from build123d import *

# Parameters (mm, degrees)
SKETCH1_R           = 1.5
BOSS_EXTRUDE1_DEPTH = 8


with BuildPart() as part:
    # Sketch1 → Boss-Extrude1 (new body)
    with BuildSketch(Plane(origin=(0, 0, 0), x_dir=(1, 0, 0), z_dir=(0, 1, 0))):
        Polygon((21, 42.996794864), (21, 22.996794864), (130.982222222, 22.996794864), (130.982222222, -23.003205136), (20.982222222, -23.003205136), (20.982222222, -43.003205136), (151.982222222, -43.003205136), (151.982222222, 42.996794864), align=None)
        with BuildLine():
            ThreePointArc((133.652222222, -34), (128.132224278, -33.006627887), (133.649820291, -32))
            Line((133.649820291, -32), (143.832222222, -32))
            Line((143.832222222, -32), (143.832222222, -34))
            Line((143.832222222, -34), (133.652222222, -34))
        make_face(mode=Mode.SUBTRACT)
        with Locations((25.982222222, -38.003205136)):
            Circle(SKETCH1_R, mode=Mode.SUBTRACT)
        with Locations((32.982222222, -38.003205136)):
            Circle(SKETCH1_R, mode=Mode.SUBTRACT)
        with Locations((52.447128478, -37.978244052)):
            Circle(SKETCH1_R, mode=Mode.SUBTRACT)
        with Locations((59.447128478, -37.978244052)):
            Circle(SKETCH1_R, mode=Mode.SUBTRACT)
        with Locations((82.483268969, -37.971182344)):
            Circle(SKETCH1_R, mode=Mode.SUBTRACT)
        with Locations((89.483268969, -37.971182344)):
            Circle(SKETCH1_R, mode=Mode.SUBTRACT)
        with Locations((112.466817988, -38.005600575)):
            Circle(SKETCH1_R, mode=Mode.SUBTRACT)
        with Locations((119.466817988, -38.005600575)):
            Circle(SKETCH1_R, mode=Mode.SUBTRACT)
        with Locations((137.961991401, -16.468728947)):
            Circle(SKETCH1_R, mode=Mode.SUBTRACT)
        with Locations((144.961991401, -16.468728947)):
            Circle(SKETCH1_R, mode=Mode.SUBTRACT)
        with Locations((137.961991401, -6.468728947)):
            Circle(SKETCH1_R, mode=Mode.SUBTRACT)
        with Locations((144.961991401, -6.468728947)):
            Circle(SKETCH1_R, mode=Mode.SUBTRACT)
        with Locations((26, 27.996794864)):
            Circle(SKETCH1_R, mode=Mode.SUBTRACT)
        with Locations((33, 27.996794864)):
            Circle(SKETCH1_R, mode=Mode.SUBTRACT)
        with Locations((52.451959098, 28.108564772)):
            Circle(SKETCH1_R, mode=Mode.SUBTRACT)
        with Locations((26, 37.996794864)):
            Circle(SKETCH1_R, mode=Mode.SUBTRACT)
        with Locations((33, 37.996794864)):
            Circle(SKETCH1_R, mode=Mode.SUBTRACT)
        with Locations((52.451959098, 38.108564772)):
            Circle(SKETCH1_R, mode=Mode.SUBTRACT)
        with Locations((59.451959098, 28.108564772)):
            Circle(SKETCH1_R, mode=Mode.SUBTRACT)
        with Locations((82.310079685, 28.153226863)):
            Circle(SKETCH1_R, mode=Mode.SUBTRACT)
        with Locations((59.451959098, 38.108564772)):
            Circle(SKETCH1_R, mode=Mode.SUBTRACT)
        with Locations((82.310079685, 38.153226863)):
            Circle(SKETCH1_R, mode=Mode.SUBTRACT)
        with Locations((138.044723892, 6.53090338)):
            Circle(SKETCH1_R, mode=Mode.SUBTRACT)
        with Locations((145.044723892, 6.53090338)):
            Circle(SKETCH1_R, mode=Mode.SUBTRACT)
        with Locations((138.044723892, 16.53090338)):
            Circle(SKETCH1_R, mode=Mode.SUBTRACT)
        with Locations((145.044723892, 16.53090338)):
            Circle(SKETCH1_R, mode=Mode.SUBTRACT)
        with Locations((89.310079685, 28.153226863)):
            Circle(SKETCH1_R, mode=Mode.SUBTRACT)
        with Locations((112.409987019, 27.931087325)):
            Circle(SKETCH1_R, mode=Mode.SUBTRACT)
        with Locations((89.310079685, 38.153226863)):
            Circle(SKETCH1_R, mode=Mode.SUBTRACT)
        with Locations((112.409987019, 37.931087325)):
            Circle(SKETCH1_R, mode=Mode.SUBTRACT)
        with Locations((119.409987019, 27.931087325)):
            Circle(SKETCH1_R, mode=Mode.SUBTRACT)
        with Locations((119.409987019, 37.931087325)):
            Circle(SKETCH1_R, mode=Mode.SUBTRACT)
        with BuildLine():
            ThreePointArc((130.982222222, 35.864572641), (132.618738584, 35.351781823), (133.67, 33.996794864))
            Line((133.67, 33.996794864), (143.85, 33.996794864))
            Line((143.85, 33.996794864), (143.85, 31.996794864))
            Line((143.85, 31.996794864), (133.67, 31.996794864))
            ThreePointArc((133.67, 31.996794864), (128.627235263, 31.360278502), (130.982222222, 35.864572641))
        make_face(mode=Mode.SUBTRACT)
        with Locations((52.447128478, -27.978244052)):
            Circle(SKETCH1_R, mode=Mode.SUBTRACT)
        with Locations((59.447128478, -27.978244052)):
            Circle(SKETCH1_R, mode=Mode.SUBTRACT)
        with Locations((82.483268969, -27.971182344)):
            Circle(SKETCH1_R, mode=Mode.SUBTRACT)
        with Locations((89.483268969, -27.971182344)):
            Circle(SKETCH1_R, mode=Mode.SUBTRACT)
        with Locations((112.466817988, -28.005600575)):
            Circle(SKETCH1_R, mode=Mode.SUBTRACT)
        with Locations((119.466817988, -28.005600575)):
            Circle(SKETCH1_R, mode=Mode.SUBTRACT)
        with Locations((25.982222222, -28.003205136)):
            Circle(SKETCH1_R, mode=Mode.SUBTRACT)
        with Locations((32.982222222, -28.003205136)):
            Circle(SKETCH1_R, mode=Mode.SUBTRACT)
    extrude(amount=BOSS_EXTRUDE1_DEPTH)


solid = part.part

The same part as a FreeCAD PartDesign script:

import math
import FreeCAD as App
import Part
import Sketcher

doc = App.newDocument("Part")
body = doc.addObject("PartDesign::Body", "Body")

sketch1 = doc.addObject("Sketcher::SketchObject", "Sketch")
body.addObject(sketch1)
sketch1.AttachmentSupport = (doc.XZ_Plane, [""])
sketch1.MapMode = "FlatFace"
sketch1.addGeometry(Part.LineSegment(App.Vector(21, -43, 0), App.Vector(21, -23, 0)), False)
sketch1.addGeometry(Part.LineSegment(App.Vector(21, -23, 0), App.Vector(131, -23, 0)), False)
sketch1.addGeometry(Part.LineSegment(App.Vector(131, -23, 0), App.Vector(131, 23, 0)), False)
sketch1.addGeometry(Part.LineSegment(App.Vector(131, 23, 0), App.Vector(21, 23, 0)), False)
sketch1.addGeometry(Part.LineSegment(App.Vector(21, 23, 0), App.Vector(21, 43, 0)), False)
sketch1.addGeometry(Part.LineSegment(App.Vector(21, 43, 0), App.Vector(152, 43, 0)), False)
sketch1.addGeometry(Part.LineSegment(App.Vector(152, 43, 0), App.Vector(152, -43, 0)), False)
sketch1.addGeometry(Part.LineSegment(App.Vector(152, -43, 0), App.Vector(21, -43, 0)), False)
sketch1.addGeometry(Part.Circle(App.Vector(26, 38, 0), App.Vector(0, 0, 1), 1.5), False)
sketch1.addGeometry(Part.Circle(App.Vector(33, 38, 0), App.Vector(0, 0, 1), 1.5), False)
sketch1.addGeometry(Part.Circle(App.Vector(52.4, 38, 0), App.Vector(0, 0, 1), 1.5), False)
sketch1.addGeometry(Part.Circle(App.Vector(26, 28, 0), App.Vector(0, 0, 1), 1.5), False)
sketch1.addGeometry(Part.Circle(App.Vector(33, 28, 0), App.Vector(0, 0, 1), 1.5), False)
sketch1.addGeometry(Part.Circle(App.Vector(52.4, 28, 0), App.Vector(0, 0, 1), 1.5), False)
sketch1.addGeometry(Part.Circle(App.Vector(59.4, 38, 0), App.Vector(0, 0, 1), 1.5), False)
sketch1.addGeometry(Part.Circle(App.Vector(82.5, 38, 0), App.Vector(0, 0, 1), 1.5), False)
sketch1.addGeometry(Part.Circle(App.Vector(59.4, 28, 0), App.Vector(0, 0, 1), 1.5), False)
sketch1.addGeometry(Part.Circle(App.Vector(82.5, 28, 0), App.Vector(0, 0, 1), 1.5), False)
sketch1.addGeometry(Part.Circle(App.Vector(89.5, 38, 0), App.Vector(0, 0, 1), 1.5), False)
sketch1.addGeometry(Part.Circle(App.Vector(112.5, 38, 0), App.Vector(0, 0, 1), 1.5), False)
sketch1.addGeometry(Part.Circle(App.Vector(89.5, 28, 0), App.Vector(0, 0, 1), 1.5), False)
sketch1.addGeometry(Part.Circle(App.Vector(112.5, 28, 0), App.Vector(0, 0, 1), 1.5), False)
sketch1.addGeometry(Part.Circle(App.Vector(119.5, 38, 0), App.Vector(0, 0, 1), 1.5), False)
sketch1.addGeometry(Part.LineSegment(App.Vector(143.8, 34, 0), App.Vector(133.7, 34, 0)), False)
sketch1.addGeometry(Part.ArcOfCircle(Part.Circle(App.Vector(131, 33, 0), App.Vector(0, 0, 1), 2.9), math.radians(20), math.radians(339)), False)
sketch1.addGeometry(Part.LineSegment(App.Vector(133.6, 32, 0), App.Vector(143.8, 32, 0)), False)
sketch1.addGeometry(Part.LineSegment(App.Vector(143.8, 32, 0), App.Vector(143.8, 34, 0)), False)
sketch1.addGeometry(Part.Circle(App.Vector(119.5, 28, 0), App.Vector(0, 0, 1), 1.5), False)
sketch1.addGeometry(Part.Circle(App.Vector(138, 16.5, 0), App.Vector(0, 0, 1), 1.5), False)
sketch1.addGeometry(Part.Circle(App.Vector(145, 16.5, 0), App.Vector(0, 0, 1), 1.5), False)
sketch1.addGeometry(Part.Circle(App.Vector(138, 6.5, 0), App.Vector(0, 0, 1), 1.5), False)
sketch1.addGeometry(Part.Circle(App.Vector(145, 6.5, 0), App.Vector(0, 0, 1), 1.5), False)
sketch1.addGeometry(Part.Circle(App.Vector(26, -28, 0), App.Vector(0, 0, 1), 1.5), False)
sketch1.addGeometry(Part.Circle(App.Vector(33, -28, 0), App.Vector(0, 0, 1), 1.5), False)
sketch1.addGeometry(Part.Circle(App.Vector(52.5, -28.1, 0), App.Vector(0, 0, 1), 1.5), False)
sketch1.addGeometry(Part.Circle(App.Vector(26, -38, 0), App.Vector(0, 0, 1), 1.5), False)
sketch1.addGeometry(Part.Circle(App.Vector(33, -38, 0), App.Vector(0, 0, 1), 1.5), False)
sketch1.addGeometry(Part.Circle(App.Vector(52.5, -38.1, 0), App.Vector(0, 0, 1), 1.5), False)
sketch1.addGeometry(Part.Circle(App.Vector(59.5, -28.1, 0), App.Vector(0, 0, 1), 1.5), False)
sketch1.addGeometry(Part.Circle(App.Vector(82.3, -28.2, 0), App.Vector(0, 0, 1), 1.5), False)
sketch1.addGeometry(Part.Circle(App.Vector(59.5, -38.1, 0), App.Vector(0, 0, 1), 1.5), False)
sketch1.addGeometry(Part.Circle(App.Vector(82.3, -38.2, 0), App.Vector(0, 0, 1), 1.5), False)
sketch1.addGeometry(Part.Circle(App.Vector(138, -6.5, 0), App.Vector(0, 0, 1), 1.5), False)
sketch1.addGeometry(Part.Circle(App.Vector(145, -6.5, 0), App.Vector(0, 0, 1), 1.5), False)
sketch1.addGeometry(Part.Circle(App.Vector(138, -16.5, 0), App.Vector(0, 0, 1), 1.5), False)
sketch1.addGeometry(Part.Circle(App.Vector(145, -16.5, 0), App.Vector(0, 0, 1), 1.5), False)
sketch1.addGeometry(Part.Circle(App.Vector(89.3, -28.2, 0), App.Vector(0, 0, 1), 1.5), False)
sketch1.addGeometry(Part.Circle(App.Vector(112.4, -27.9, 0), App.Vector(0, 0, 1), 1.5), False)
sketch1.addGeometry(Part.Circle(App.Vector(89.3, -38.2, 0), App.Vector(0, 0, 1), 1.5), False)
sketch1.addGeometry(Part.Circle(App.Vector(112.4, -37.9, 0), App.Vector(0, 0, 1), 1.5), False)
sketch1.addGeometry(Part.Circle(App.Vector(119.4, -27.9, 0), App.Vector(0, 0, 1), 1.5), False)
sketch1.addGeometry(Part.Circle(App.Vector(119.4, -37.9, 0), App.Vector(0, 0, 1), 1.5), False)
sketch1.addGeometry(Part.ArcOfCircle(Part.Circle(App.Vector(131, -33, 0), App.Vector(0, 0, 1), 2.9), math.radians(20), math.radians(270)), False)
sketch1.addGeometry(Part.ArcOfCircle(Part.Circle(App.Vector(131, -33, 0), App.Vector(0, 0, 1), 2.9), math.radians(-90), math.radians(-20)), False)
sketch1.addGeometry(Part.LineSegment(App.Vector(133.7, -34, 0), App.Vector(143.8, -34, 0)), False)
sketch1.addGeometry(Part.LineSegment(App.Vector(143.8, -34, 0), App.Vector(143.8, -32, 0)), False)
sketch1.addGeometry(Part.LineSegment(App.Vector(143.8, -32, 0), App.Vector(133.7, -32, 0)), False)
sketch1.addConstraint(Sketcher.Constraint("Coincident", 0, 2, 1, 1))
sketch1.addConstraint(Sketcher.Constraint("Coincident", 1, 2, 2, 1))
sketch1.addConstraint(Sketcher.Constraint("Coincident", 2, 2, 3, 1))
sketch1.addConstraint(Sketcher.Constraint("Coincident", 3, 2, 4, 1))
sketch1.addConstraint(Sketcher.Constraint("Coincident", 4, 2, 5, 1))
sketch1.addConstraint(Sketcher.Constraint("Coincident", 5, 2, 6, 1))
sketch1.addConstraint(Sketcher.Constraint("Coincident", 6, 2, 7, 1))
sketch1.addConstraint(Sketcher.Constraint("Coincident", 7, 2, 0, 1))
sketch1.addConstraint(Sketcher.Constraint("Coincident", 23, 2, 24, 1))
sketch1.addConstraint(Sketcher.Constraint("Coincident", 24, 2, 25, 1))
sketch1.addConstraint(Sketcher.Constraint("Coincident", 25, 2, 26, 1))
sketch1.addConstraint(Sketcher.Constraint("Coincident", 26, 2, 23, 1))
sketch1.addConstraint(Sketcher.Constraint("Tangent", 52, 2, 53, 1))
sketch1.addConstraint(Sketcher.Constraint("Coincident", 53, 2, 54, 1))
sketch1.addConstraint(Sketcher.Constraint("Coincident", 54, 2, 55, 1))
sketch1.addConstraint(Sketcher.Constraint("Coincident", 55, 2, 56, 1))
sketch1.addConstraint(Sketcher.Constraint("Coincident", 56, 2, 52, 1))
sketch1.addConstraint(Sketcher.Constraint("Vertical", 0))
sketch1.addConstraint(Sketcher.Constraint("Horizontal", 1))
sketch1.addConstraint(Sketcher.Constraint("Vertical", 2))
sketch1.addConstraint(Sketcher.Constraint("Horizontal", 3))
sketch1.addConstraint(Sketcher.Constraint("Vertical", 4))
sketch1.addConstraint(Sketcher.Constraint("Horizontal", 5))
sketch1.addConstraint(Sketcher.Constraint("Vertical", 6))
sketch1.addConstraint(Sketcher.Constraint("Horizontal", 7))
sketch1.addConstraint(Sketcher.Constraint("Horizontal", 23))
sketch1.addConstraint(Sketcher.Constraint("Horizontal", 25))
sketch1.addConstraint(Sketcher.Constraint("Vertical", 26))
sketch1.addConstraint(Sketcher.Constraint("Horizontal", 54))
sketch1.addConstraint(Sketcher.Constraint("Vertical", 55))
sketch1.addConstraint(Sketcher.Constraint("Horizontal", 56))
sketch1.addConstraint(Sketcher.Constraint("Equal", 8, 9))
sketch1.addConstraint(Sketcher.Constraint("Equal", 9, 10))
sketch1.addConstraint(Sketcher.Constraint("Equal", 10, 11))
sketch1.addConstraint(Sketcher.Constraint("Equal", 11, 12))
sketch1.addConstraint(Sketcher.Constraint("Equal", 12, 13))
sketch1.addConstraint(Sketcher.Constraint("Equal", 13, 14))
sketch1.addConstraint(Sketcher.Constraint("Equal", 14, 15))
sketch1.addConstraint(Sketcher.Constraint("Equal", 15, 16))
sketch1.addConstraint(Sketcher.Constraint("Equal", 16, 17))
sketch1.addConstraint(Sketcher.Constraint("Equal", 17, 18))
sketch1.addConstraint(Sketcher.Constraint("Equal", 18, 19))
sketch1.addConstraint(Sketcher.Constraint("Equal", 19, 20))
sketch1.addConstraint(Sketcher.Constraint("Equal", 20, 21))
sketch1.addConstraint(Sketcher.Constraint("Equal", 21, 22))
sketch1.addConstraint(Sketcher.Constraint("Equal", 22, 27))
sketch1.addConstraint(Sketcher.Constraint("Equal", 27, 28))
sketch1.addConstraint(Sketcher.Constraint("Equal", 28, 29))
sketch1.addConstraint(Sketcher.Constraint("Equal", 29, 30))
sketch1.addConstraint(Sketcher.Constraint("Equal", 30, 31))
sketch1.addConstraint(Sketcher.Constraint("Equal", 31, 32))
sketch1.addConstraint(Sketcher.Constraint("Equal", 32, 33))
sketch1.addConstraint(Sketcher.Constraint("Equal", 33, 34))
sketch1.addConstraint(Sketcher.Constraint("Equal", 34, 35))
sketch1.addConstraint(Sketcher.Constraint("Equal", 35, 36))
sketch1.addConstraint(Sketcher.Constraint("Equal", 36, 37))
sketch1.addConstraint(Sketcher.Constraint("Equal", 37, 38))
sketch1.addConstraint(Sketcher.Constraint("Equal", 38, 39))
sketch1.addConstraint(Sketcher.Constraint("Equal", 39, 40))
sketch1.addConstraint(Sketcher.Constraint("Equal", 40, 41))
sketch1.addConstraint(Sketcher.Constraint("Equal", 41, 42))
sketch1.addConstraint(Sketcher.Constraint("Equal", 42, 43))
sketch1.addConstraint(Sketcher.Constraint("Equal", 43, 44))
sketch1.addConstraint(Sketcher.Constraint("Equal", 44, 45))
sketch1.addConstraint(Sketcher.Constraint("Equal", 45, 46))
sketch1.addConstraint(Sketcher.Constraint("Equal", 46, 47))
sketch1.addConstraint(Sketcher.Constraint("Equal", 47, 48))
sketch1.addConstraint(Sketcher.Constraint("Equal", 48, 49))
sketch1.addConstraint(Sketcher.Constraint("Equal", 49, 50))
sketch1.addConstraint(Sketcher.Constraint("Equal", 50, 51))
sketch1.addConstraint(Sketcher.Constraint("Equal", 52, 53))
sketch1.addConstraint(Sketcher.Constraint("Horizontal", 8, 3, 9, 3))
sketch1.addConstraint(Sketcher.Constraint("Horizontal", 11, 3, 12, 3))
sketch1.addConstraint(Sketcher.Constraint("Horizontal", 10, 3, 14, 3))
sketch1.addConstraint(Sketcher.Constraint("Horizontal", 13, 3, 16, 3))
sketch1.addConstraint(Sketcher.Constraint("Horizontal", 15, 3, 18, 3))
sketch1.addConstraint(Sketcher.Constraint("Horizontal", 17, 3, 20, 3))
sketch1.addConstraint(Sketcher.Constraint("Horizontal", 19, 3, 22, 3))
sketch1.addConstraint(Sketcher.Constraint("Horizontal", 21, 3, 27, 3))
sketch1.addConstraint(Sketcher.Constraint("Horizontal", 28, 3, 29, 3))
sketch1.addConstraint(Sketcher.Constraint("Horizontal", 30, 3, 31, 3))
sketch1.addConstraint(Sketcher.Constraint("Horizontal", 32, 3, 33, 3))
sketch1.addConstraint(Sketcher.Constraint("Horizontal", 35, 3, 36, 3))
sketch1.addConstraint(Sketcher.Constraint("Horizontal", 34, 3, 38, 3))
sketch1.addConstraint(Sketcher.Constraint("Horizontal", 37, 3, 40, 3))
sketch1.addConstraint(Sketcher.Constraint("Horizontal", 42, 3, 43, 3))
sketch1.addConstraint(Sketcher.Constraint("Horizontal", 44, 3, 45, 3))
sketch1.addConstraint(Sketcher.Constraint("Horizontal", 39, 3, 46, 3))
sketch1.addConstraint(Sketcher.Constraint("Horizontal", 41, 3, 48, 3))
sketch1.addConstraint(Sketcher.Constraint("Horizontal", 47, 3, 50, 3))
sketch1.addConstraint(Sketcher.Constraint("Horizontal", 49, 3, 51, 3))
sketch1.addConstraint(Sketcher.Constraint("Vertical", 8, 3, 11, 3))
sketch1.addConstraint(Sketcher.Constraint("Vertical", 9, 3, 12, 3))
sketch1.addConstraint(Sketcher.Constraint("Vertical", 10, 3, 13, 3))
sketch1.addConstraint(Sketcher.Constraint("Vertical", 14, 3, 16, 3))
sketch1.addConstraint(Sketcher.Constraint("Vertical", 15, 3, 17, 3))
sketch1.addConstraint(Sketcher.Constraint("Vertical", 18, 3, 20, 3))
sketch1.addConstraint(Sketcher.Constraint("Vertical", 19, 3, 21, 3))
sketch1.addConstraint(Sketcher.Constraint("Vertical", 22, 3, 27, 3))
sketch1.addConstraint(Sketcher.Constraint("Vertical", 28, 3, 30, 3))
sketch1.addConstraint(Sketcher.Constraint("Vertical", 29, 3, 31, 3))
sketch1.addConstraint(Sketcher.Constraint("Vertical", 32, 3, 35, 3))
sketch1.addConstraint(Sketcher.Constraint("Vertical", 33, 3, 36, 3))
sketch1.addConstraint(Sketcher.Constraint("Vertical", 34, 3, 37, 3))
sketch1.addConstraint(Sketcher.Constraint("Vertical", 38, 3, 40, 3))
sketch1.addConstraint(Sketcher.Constraint("Vertical", 39, 3, 41, 3))
sketch1.addConstraint(Sketcher.Constraint("Vertical", 42, 3, 44, 3))
sketch1.addConstraint(Sketcher.Constraint("Vertical", 43, 3, 45, 3))
sketch1.addConstraint(Sketcher.Constraint("Vertical", 46, 3, 48, 3))
sketch1.addConstraint(Sketcher.Constraint("Vertical", 47, 3, 49, 3))
sketch1.addConstraint(Sketcher.Constraint("Vertical", 50, 3, 51, 3))
sketch1.addConstraint(Sketcher.Constraint("Vertical", 24, 3, 52, 3))
sketch1.addConstraint(Sketcher.Constraint("Vertical", 53, 3, 1, 2))
sketch1.addConstraint(Sketcher.Constraint("Vertical", 2, 2, 52, 2))
sketch1.addConstraint(Sketcher.Constraint("Vertical", 53, 2, 56, 2))
sketch1.addConstraint(Sketcher.Constraint("Equal", 23, 54))
sketch1.addConstraint(Sketcher.Constraint("Equal", 0, 4))
sketch1.addConstraint(Sketcher.Constraint("Equal", 26, 55))
sketch1.addConstraint(Sketcher.Constraint("Diameter", 8, 3.0))
sketch1.addConstraint(Sketcher.Constraint("DistanceX", 3, 2, 3, 1, 110.0))
sketch1.addConstraint(Sketcher.Constraint("DistanceX", 5, 1, 5, 2, 131.0))
sketch1.addConstraint(Sketcher.Constraint("DistanceY", 0, 1, 0, 2, 20.0))
sketch1.addConstraint(Sketcher.Constraint("DistanceY", 2, 1, 2, 2, 46.0))
sketch1.addConstraint(Sketcher.Constraint("DistanceY", 26, 1, 26, 2, 2.0))
sketch1.addConstraint(Sketcher.Constraint("Radius", 24, 2.85))
sketch1.addConstraint(Sketcher.Constraint("DistanceX", -1, 1, 32, 3, 26.0))
sketch1.addConstraint(Sketcher.Constraint("DistanceX", -1, 1, 33, 3, 33.0))
sketch1.addConstraint(Sketcher.Constraint("DistanceX", -1, 1, 0, 2, 21.0))
sketch1.addConstraint(Sketcher.Constraint("DistanceY", -1, 1, 23, 2, 34.0))
sketch1.addConstraint(Sketcher.Constraint("DistanceX", 8, 3, 9, 3, 7.0))
sketch1.addConstraint(Sketcher.Constraint("DistanceY", 11, 3, 8, 3, 10.0))
sketch1.addConstraint(Sketcher.Constraint("DistanceY", 13, 3, 10, 3, 10.0))
sketch1.addConstraint(Sketcher.Constraint("DistanceX", 10, 3, 14, 3, 7.0))
sketch1.addConstraint(Sketcher.Constraint("DistanceY", 17, 3, 15, 3, 10.0))
sketch1.addConstraint(Sketcher.Constraint("DistanceX", 15, 3, 18, 3, 7.0))
sketch1.addConstraint(Sketcher.Constraint("DistanceY", 21, 3, 19, 3, 10.0))
sketch1.addConstraint(Sketcher.Constraint("DistanceX", 19, 3, 22, 3, 7.0))
sketch1.addConstraint(Sketcher.Constraint("DistanceX", 28, 3, 29, 3, 7.0))
sketch1.addConstraint(Sketcher.Constraint("DistanceY", 30, 3, 28, 3, 10.0))
sketch1.addConstraint(Sketcher.Constraint("DistanceY", 32, 3, 11, 3, 56.0))
sketch1.addConstraint(Sketcher.Constraint("DistanceY", 35, 3, 32, 3, 10.0))
sketch1.addConstraint(Sketcher.Constraint("DistanceY", 37, 3, 34, 3, 10.0))
sketch1.addConstraint(Sketcher.Constraint("DistanceX", 34, 3, 38, 3, 7.0))
sketch1.addConstraint(Sketcher.Constraint("DistanceY", 41, 3, 39, 3, 10.0))
sketch1.addConstraint(Sketcher.Constraint("DistanceX", 42, 3, 43, 3, 7.0))
sketch1.addConstraint(Sketcher.Constraint("DistanceY", 44, 3, 42, 3, 10.0))
sketch1.addConstraint(Sketcher.Constraint("DistanceX", 39, 3, 46, 3, 7.0))
sketch1.addConstraint(Sketcher.Constraint("DistanceY", 49, 3, 47, 3, 10.0))
sketch1.addConstraint(Sketcher.Constraint("DistanceX", 47, 3, 50, 3, 7.0))
sketch1.addConstraint(Sketcher.Constraint("DistanceY", 32, 3, 0, 2, 5.0))
sketch1.addConstraint(Sketcher.Constraint("DistanceY", 53, 3, 1, 2, 10.0))
sketch1.addConstraint(Sketcher.Constraint("DistanceY", 2, 2, 24, 3, 10.0))
sketch1.addConstraint(Sketcher.Constraint("DistanceX", 3, 2, 11, 3, 5.0))
sketch1.addConstraint(Sketcher.Constraint("DistanceX", 23, 2, 23, 1, 10.18))
sketch1.addConstraint(Sketcher.Constraint("DistanceX", -1, 1, 53, 2, 133.67))
sketch1.addConstraint(Sketcher.Constraint("DistanceX", 24, 3, 23, 2, 2.67))
sketch1.addConstraint(Sketcher.Constraint("Radius", 52, 2.867778))
sketch1.addConstraint(Sketcher.Constraint("DistanceY", -1, 1, 19, 3, 38.005601))
sketch1.addConstraint(Sketcher.Constraint("DistanceX", 52, 3, 44, 3, 7.062502))
sketch1.addConstraint(Sketcher.Constraint("DistanceX", -1, 1, 10, 3, 52.447128))
sketch1.addConstraint(Sketcher.Constraint("DistanceX", -1, 1, 15, 3, 82.483269))
sketch1.addConstraint(Sketcher.Constraint("DistanceX", -1, 1, 28, 3, 137.961991))
sketch1.addConstraint(Sketcher.Constraint("DistanceY", -1, 1, 28, 3, 16.468729))
sketch1.addConstraint(Sketcher.Constraint("DistanceX", -1, 1, 34, 3, 52.451959))
sketch1.addConstraint(Sketcher.Constraint("DistanceX", -1, 1, 39, 3, 82.31008))
sketch1.addConstraint(Sketcher.Constraint("DistanceY", 10, 3, 9, 3, 0.024961))
sketch1.addConstraint(Sketcher.Constraint("DistanceY", 15, 3, 14, 3, 0.007062))
sketch1.addConstraint(Sketcher.Constraint("DistanceX", 18, 3, 19, 3, 22.983549))
sketch1.addConstraint(Sketcher.Constraint("DistanceY", 34, 3, 33, 3, 0.11177))
sketch1.addConstraint(Sketcher.Constraint("DistanceY", 39, 3, 33, 3, 0.156432))
sketch1.addConstraint(Sketcher.Constraint("DistanceY", 46, 3, 47, 3, 0.22214))
sketch1.addConstraint(Sketcher.Constraint("DistanceY", 52, 3, 44, 3, 16.465891))
sketch1.addConstraint(Sketcher.Constraint("DistanceX", -1, 1, 47, 3, 112.409987))
pad1 = doc.addObject("PartDesign::Pad", "Pad")
body.addObject(pad1)
pad1.Profile = sketch1
pad1.Length = 8
pad1.Reversed = True

doc.recompute()
